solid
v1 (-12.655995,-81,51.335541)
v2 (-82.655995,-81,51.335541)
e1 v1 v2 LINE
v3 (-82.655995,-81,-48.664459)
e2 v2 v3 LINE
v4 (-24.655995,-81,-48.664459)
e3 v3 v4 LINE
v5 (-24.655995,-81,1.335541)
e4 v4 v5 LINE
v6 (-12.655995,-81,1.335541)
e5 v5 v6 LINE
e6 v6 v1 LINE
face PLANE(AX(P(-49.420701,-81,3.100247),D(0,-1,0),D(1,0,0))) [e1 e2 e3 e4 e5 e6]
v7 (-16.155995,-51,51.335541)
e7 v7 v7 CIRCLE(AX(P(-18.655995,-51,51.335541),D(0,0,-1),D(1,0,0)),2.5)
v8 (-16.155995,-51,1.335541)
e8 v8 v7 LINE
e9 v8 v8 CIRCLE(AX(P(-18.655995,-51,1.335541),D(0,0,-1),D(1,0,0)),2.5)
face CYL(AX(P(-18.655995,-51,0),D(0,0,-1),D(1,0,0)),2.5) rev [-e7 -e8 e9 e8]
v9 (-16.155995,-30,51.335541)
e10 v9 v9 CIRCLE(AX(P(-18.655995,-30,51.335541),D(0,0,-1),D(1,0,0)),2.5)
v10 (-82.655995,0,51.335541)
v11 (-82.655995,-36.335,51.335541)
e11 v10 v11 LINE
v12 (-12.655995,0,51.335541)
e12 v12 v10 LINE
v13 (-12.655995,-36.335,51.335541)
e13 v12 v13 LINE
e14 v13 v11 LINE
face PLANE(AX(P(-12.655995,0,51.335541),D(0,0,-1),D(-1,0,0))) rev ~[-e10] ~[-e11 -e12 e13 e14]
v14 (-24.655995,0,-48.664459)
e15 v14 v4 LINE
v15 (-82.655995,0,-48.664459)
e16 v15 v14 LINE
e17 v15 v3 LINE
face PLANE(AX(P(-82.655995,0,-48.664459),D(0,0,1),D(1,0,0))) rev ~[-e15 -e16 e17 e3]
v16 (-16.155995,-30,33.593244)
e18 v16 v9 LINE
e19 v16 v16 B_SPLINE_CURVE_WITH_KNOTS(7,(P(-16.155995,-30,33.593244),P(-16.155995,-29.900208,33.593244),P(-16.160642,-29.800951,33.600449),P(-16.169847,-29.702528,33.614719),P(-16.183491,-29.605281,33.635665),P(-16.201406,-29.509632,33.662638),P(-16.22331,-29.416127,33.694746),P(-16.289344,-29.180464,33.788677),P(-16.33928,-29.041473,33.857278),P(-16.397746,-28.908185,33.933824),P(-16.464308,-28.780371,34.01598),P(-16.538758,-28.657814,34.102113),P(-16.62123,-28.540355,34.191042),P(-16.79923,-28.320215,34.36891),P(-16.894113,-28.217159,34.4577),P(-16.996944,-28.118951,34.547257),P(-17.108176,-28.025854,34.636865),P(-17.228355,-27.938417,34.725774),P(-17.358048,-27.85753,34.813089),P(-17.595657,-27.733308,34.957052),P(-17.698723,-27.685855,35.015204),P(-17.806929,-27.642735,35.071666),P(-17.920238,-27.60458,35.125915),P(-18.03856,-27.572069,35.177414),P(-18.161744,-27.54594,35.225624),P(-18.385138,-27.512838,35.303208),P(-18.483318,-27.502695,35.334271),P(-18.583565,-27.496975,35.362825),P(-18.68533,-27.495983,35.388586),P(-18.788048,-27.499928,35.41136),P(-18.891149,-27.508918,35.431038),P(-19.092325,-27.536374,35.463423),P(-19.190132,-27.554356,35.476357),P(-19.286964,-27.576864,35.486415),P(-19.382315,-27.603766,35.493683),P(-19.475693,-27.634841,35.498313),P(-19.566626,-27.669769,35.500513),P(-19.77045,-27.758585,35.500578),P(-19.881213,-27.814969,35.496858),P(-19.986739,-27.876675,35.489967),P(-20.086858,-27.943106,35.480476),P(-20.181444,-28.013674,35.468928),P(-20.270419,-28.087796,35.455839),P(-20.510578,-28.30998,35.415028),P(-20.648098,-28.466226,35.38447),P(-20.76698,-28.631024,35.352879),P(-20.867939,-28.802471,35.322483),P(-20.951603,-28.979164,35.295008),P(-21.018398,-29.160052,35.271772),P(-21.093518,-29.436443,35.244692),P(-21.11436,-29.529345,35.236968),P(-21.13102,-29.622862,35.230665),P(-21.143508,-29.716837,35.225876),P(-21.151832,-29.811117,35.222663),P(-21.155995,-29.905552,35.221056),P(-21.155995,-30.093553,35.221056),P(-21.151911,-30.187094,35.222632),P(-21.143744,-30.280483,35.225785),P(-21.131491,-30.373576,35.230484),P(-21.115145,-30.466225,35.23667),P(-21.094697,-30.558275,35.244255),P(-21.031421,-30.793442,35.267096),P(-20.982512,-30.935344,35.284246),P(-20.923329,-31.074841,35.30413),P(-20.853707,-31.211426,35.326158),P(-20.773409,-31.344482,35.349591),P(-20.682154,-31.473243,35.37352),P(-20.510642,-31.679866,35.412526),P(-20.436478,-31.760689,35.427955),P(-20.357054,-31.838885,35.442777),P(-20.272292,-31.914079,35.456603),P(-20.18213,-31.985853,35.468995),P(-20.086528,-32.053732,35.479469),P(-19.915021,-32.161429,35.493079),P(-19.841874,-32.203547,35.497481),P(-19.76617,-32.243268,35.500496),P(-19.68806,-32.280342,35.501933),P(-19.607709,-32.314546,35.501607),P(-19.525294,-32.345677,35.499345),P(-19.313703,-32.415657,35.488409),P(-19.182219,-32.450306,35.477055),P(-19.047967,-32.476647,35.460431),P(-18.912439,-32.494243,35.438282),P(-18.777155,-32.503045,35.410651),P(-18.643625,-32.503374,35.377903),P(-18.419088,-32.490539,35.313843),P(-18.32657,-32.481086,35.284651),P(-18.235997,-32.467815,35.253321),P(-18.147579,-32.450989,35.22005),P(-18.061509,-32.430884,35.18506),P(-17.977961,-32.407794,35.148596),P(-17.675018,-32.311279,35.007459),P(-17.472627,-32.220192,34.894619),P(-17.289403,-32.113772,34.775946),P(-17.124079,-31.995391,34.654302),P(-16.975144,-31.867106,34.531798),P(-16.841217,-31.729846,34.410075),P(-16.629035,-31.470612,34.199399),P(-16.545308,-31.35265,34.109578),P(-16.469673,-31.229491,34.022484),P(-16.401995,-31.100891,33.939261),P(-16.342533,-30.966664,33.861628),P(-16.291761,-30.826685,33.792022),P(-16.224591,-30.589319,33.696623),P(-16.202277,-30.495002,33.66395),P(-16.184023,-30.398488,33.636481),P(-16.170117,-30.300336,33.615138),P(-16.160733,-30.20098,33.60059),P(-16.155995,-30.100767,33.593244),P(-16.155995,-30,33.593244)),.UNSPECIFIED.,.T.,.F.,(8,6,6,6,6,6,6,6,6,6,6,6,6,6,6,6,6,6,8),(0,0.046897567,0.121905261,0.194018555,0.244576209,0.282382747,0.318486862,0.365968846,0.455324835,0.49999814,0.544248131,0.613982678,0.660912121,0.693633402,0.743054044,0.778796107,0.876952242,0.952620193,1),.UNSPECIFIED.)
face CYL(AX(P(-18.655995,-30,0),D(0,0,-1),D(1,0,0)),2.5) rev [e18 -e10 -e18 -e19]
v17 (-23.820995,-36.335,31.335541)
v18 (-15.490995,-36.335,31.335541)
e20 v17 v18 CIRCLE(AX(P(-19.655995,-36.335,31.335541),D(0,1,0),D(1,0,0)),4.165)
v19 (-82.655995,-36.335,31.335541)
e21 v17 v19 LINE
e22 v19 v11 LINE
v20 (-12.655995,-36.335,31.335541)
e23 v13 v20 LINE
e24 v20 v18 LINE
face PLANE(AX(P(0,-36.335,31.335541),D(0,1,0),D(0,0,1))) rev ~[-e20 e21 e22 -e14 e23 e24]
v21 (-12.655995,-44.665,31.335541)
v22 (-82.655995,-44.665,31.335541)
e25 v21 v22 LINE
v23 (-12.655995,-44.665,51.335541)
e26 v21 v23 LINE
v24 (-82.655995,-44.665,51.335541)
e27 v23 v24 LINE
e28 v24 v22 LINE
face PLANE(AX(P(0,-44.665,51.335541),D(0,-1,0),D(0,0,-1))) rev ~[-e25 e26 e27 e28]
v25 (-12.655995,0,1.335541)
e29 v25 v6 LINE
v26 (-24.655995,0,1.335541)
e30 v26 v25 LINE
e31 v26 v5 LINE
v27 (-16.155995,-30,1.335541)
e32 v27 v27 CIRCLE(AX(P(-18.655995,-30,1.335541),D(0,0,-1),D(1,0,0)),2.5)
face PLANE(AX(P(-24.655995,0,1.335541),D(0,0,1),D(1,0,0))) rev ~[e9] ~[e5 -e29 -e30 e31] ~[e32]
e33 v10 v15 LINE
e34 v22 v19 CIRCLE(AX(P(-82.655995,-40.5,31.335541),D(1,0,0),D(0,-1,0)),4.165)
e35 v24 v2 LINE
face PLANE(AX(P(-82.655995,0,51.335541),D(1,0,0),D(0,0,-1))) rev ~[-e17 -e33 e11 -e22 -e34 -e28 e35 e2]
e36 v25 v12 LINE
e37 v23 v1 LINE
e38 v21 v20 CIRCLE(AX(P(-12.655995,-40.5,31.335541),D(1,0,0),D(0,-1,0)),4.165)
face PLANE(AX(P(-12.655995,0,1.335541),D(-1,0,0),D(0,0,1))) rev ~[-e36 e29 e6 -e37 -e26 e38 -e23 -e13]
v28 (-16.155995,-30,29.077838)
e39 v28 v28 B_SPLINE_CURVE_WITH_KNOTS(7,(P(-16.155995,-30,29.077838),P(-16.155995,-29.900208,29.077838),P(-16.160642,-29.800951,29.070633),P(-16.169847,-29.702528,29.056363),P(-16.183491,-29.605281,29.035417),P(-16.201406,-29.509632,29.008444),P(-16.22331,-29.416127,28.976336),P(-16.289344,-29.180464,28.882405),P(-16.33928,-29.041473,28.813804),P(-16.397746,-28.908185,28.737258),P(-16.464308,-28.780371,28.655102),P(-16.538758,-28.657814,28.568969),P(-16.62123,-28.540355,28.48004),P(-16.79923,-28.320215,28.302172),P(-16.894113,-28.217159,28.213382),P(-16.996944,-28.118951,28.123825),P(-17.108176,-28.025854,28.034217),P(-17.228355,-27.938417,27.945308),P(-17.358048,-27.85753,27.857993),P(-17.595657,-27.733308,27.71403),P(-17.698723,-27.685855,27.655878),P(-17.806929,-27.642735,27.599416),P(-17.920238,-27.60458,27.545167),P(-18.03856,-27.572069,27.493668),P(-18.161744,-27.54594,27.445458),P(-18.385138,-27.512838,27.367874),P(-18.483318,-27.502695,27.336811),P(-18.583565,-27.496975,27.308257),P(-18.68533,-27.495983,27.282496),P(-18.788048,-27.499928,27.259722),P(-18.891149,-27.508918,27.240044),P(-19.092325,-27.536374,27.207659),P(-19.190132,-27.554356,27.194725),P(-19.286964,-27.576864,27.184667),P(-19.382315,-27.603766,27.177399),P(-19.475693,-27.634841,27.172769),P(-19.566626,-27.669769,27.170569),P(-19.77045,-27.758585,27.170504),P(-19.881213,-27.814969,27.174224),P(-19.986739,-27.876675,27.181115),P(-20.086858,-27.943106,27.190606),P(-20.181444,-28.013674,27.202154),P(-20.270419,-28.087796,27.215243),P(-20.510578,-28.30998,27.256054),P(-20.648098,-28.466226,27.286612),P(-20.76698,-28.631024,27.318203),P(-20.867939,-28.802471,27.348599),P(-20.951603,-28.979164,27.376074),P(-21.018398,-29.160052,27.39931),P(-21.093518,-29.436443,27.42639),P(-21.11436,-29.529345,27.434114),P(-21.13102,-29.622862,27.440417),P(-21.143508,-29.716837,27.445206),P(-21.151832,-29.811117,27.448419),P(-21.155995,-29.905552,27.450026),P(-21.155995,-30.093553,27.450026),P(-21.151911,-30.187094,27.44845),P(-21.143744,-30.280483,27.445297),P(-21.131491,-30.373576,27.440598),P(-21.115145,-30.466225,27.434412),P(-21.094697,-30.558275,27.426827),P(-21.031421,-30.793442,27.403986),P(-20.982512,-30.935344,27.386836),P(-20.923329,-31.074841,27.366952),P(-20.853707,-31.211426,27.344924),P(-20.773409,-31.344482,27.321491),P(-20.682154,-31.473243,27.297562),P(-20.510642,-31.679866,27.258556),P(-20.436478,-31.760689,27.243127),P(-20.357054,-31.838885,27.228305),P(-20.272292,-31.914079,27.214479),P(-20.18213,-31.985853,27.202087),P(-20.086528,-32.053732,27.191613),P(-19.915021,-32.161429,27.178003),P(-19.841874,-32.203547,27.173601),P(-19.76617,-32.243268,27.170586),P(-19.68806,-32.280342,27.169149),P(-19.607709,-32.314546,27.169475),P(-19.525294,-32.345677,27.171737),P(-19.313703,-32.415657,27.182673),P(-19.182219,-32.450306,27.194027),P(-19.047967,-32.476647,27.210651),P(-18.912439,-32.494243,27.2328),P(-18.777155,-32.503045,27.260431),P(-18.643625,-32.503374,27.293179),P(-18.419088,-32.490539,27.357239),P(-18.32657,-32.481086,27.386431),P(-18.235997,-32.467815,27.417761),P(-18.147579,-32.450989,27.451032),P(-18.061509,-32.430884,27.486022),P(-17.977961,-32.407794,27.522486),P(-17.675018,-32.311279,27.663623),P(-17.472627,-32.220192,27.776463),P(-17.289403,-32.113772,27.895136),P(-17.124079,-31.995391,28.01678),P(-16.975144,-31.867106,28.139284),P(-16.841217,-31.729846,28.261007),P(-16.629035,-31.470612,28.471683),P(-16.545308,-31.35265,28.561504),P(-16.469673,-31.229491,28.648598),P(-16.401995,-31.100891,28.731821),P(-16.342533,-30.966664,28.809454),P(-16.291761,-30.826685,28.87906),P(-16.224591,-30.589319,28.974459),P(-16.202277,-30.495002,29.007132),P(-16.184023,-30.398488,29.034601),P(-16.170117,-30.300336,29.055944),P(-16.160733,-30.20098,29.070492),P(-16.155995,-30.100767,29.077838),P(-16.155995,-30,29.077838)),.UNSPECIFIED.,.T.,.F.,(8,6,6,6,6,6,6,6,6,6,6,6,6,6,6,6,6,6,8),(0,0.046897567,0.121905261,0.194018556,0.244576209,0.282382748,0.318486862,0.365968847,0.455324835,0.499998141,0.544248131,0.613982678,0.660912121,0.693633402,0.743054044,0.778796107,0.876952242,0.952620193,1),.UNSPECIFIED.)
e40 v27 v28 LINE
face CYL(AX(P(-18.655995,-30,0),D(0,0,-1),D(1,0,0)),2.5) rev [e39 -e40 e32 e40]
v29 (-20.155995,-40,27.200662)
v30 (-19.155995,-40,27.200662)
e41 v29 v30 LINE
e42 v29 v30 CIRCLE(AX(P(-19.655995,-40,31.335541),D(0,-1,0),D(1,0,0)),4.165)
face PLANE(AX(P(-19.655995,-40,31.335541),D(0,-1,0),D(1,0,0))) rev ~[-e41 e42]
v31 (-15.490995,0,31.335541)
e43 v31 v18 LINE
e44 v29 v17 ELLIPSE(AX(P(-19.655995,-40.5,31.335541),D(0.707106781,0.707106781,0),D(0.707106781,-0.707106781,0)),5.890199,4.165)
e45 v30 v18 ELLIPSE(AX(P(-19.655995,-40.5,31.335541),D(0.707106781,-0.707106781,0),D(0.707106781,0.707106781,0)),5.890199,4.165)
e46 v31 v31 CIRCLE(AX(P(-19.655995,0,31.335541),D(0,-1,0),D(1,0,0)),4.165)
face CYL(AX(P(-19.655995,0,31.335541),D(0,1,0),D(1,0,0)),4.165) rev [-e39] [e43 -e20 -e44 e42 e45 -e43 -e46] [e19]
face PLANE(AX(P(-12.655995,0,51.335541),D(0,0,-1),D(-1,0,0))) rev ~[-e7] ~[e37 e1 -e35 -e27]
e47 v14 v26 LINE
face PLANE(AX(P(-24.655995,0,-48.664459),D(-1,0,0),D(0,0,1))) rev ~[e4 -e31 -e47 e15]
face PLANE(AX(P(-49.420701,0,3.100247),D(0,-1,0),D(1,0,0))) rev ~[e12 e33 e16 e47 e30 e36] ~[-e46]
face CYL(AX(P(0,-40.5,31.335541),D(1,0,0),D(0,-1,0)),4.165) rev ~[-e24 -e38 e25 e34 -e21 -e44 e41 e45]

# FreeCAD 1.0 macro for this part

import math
import FreeCAD as App
import Part
import Sketcher
from FreeCAD import Vector
Q = App.Units.Quantity


def add_polygon(sketch, points):
    """Adds a closed chain of lines whose ends are joined by coincident constraints."""
    first, n = sketch.GeometryCount, len(points)
    for a, b in zip(points, points[1:] + points[:1]):
        sketch.addGeometry(Part.LineSegment(App.Vector(*a, 0), App.Vector(*b, 0)), False)
    for i in range(n):
        sketch.addConstraint(Sketcher.Constraint("Coincident", first + i, 2, first + (i + 1) % n, 1))

doc = App.newDocument("Part")
params = doc.addObject("Spreadsheet::Sheet", "Params")
for row, (alias, value) in enumerate([
    ("sketch1_width", "70 mm"),
    ("sketch1_width2", "58 mm"),
    ("sketch1_height", "100 mm"),
    ("pad1_length", "81 mm"),
    ("sketch2_diameter", "5 mm"),
    ("sketch3_height", "20 mm"),
    ("pocket2_length", "100 mm"),
    ("sketch4_diameter", "8.33 mm"),
    ("pocket3_length", "40 mm"),
], start=1):
    params.set(f"A{row}", alias)
    params.set(f"B{row}", "=" + value)
    params.setAlias(f"B{row}", alias)

body = doc.addObject("PartDesign::Body", "Body")

sketch1 = doc.addObject("Sketcher::SketchObject", "Sketch")
body.addObject(sketch1)
sketch1.AttachmentSupport = (doc.XZ_Plane, [""])
sketch1.MapMode = "FlatFace"
add_polygon(sketch1, [(-13, 51), (-83, 51), (-83, -49), (-25, -49), (-25, 1), (-13, 1)])
sketch1.addConstraint([
    Sketcher.Constraint("Horizontal", 0),
    Sketcher.Constraint("Vertical", 1),
    Sketcher.Constraint("Horizontal", 2),
    Sketcher.Constraint("Vertical", 3),
    Sketcher.Constraint("Horizontal", 4),
    Sketcher.Constraint("Vertical", 5),
    Sketcher.Constraint("Equal", 3, 5),
    Sketcher.Constraint("DistanceX", 0, 2, 0, 1, Q("70 mm")),
    Sketcher.Constraint("DistanceX", 2, 1, 2, 2, Q("58 mm")),
    Sketcher.Constraint("DistanceY", 1, 2, 1, 1, Q("100 mm")),
    Sketcher.Constraint("DistanceY", -1, 1, 0, 2, Q("51.335541 mm")),
    Sketcher.Constraint("DistanceX", 0, 2, -1, 1, Q("82.655995 mm")),
])
sketch1.setExpression("Constraints[13]", "Params.sketch1_width")
sketch1.setExpression("Constraints[14]", "Params.sketch1_width2")
sketch1.setExpression("Constraints[15]", "Params.sketch1_height")
pad1 = doc.addObject("PartDesign::Pad", "Pad")
body.addObject(pad1)
pad1.Profile = sketch1
pad1.setExpression("Length", "Params.pad1_length")

sketch2 = doc.addObject("Sketcher::SketchObject", "Sketch001")
body.addObject(sketch2)
sketch2.AttachmentSupport = (doc.XY_Plane, [""])
sketch2.MapMode = "FlatFace"
sketch2.addGeometry([
    Part.Circle(Vector(-18.7, -30, 0), Vector(0, 0, 1), 2.5),
    Part.Circle(Vector(-18.7, -51, 0), Vector(0, 0, 1), 2.5),
], False)
sketch2.addConstraint([
    Sketcher.Constraint("Equal", 0, 1),
    Sketcher.Constraint("Vertical", 0, 3, 1, 3),
    Sketcher.Constraint("Diameter", 0, Q("5 mm")),
    Sketcher.Constraint("DistanceY", 0, 3, -1, 1, Q("30 mm")),
    Sketcher.Constraint("DistanceY", 1, 3, -1, 1, Q("51 mm")),
    Sketcher.Constraint("DistanceX", 0, 3, -1, 1, Q("18.655995 mm")),
])
sketch2.setExpression("Constraints[2]", "Params.sketch2_diameter")
pocket1 = doc.addObject("PartDesign::Pocket", "Pocket")
body.addObject(pocket1)
pocket1.Profile = sketch2
pocket1.Type = "ThroughAll"
pocket1.Reversed = True

sketch3 = doc.addObject("Sketcher::SketchObject", "Sketch002")
body.addObject(sketch3)
sketch3.AttachmentSupport = (doc.YZ_Plane, [""])
sketch3.MapMode = "FlatFace"
sketch3.addGeometry([
    Part.LineSegment(Vector(-36.3, 31.3, 0), Vector(-36.3, 51.3, 0)),
    Part.ArcOfCircle(Part.Circle(Vector(-40.5, 51.3, 0), Vector(0, 0, 1), 4.2), math.radians(0), math.radians(180)),
    Part.LineSegment(Vector(-44.7, 51.3, 0), Vector(-44.7, 31.3, 0)),
    Part.ArcOfCircle(Part.Circle(Vector(-40.5, 31.3, 0), Vector(0, 0, 1), 4.2), math.radians(180), math.radians(360)),
], False)
sketch3.addConstraint([
    Sketcher.Constraint("Tangent", 0, 2, 1, 1),
    Sketcher.Constraint("Tangent", 1, 2, 2, 1),
    Sketcher.Constraint("Tangent", 2, 2, 3, 1),
    Sketcher.Constraint("Tangent", 3, 2, 0, 1),
    Sketcher.Constraint("Vertical", 0),
    Sketcher.Constraint("Vertical", 2),
    Sketcher.Constraint("DistanceY", 0, 1, 0, 2, Q("20 mm")),
    Sketcher.Constraint("Radius", 1, Q("4.165 mm")),
    Sketcher.Constraint("DistanceX", 1, 3, -1, 1, Q("40.5 mm")),
    Sketcher.Constraint("DistanceY", -1, 1, 1, 3, Q("51.335541 mm")),
])
sketch3.setExpression("Constraints[6]", "Params.sketch3_height")
pocket2 = doc.addObject("PartDesign::Pocket", "Pocket001")
body.addObject(pocket2)
pocket2.Profile = sketch3
pocket2.setExpression("Length", "Params.pocket2_length")

sketch4 = doc.addObject("Sketcher::SketchObject", "Sketch003")
body.addObject(sketch4)
sketch4.AttachmentSupport = (doc.XZ_Plane, [""])
sketch4.MapMode = "FlatFace"
sketch4.addGeometry(Part.Circle(Vector(-19.7, 31.3, 0), Vector(0, 0, 1), 4.2), False)
sketch4.addConstraint([
    Sketcher.Constraint("Diameter", 0, Q("8.33 mm")),
    Sketcher.Constraint("DistanceY", -1, 1, 0, 3, Q("31.335541 mm")),
    Sketcher.Constraint("DistanceX", 0, 3, -1, 1, Q("19.655995 mm")),
])
sketch4.setExpression("Constraints[0]", "Params.sketch4_diameter")
pocket3 = doc.addObject("PartDesign::Pocket", "Pocket002")
body.addObject(pocket3)
pocket3.Profile = sketch4
pocket3.setExpression("Length", "Params.pocket3_length")
pocket3.Reversed = True

doc.recompute()
